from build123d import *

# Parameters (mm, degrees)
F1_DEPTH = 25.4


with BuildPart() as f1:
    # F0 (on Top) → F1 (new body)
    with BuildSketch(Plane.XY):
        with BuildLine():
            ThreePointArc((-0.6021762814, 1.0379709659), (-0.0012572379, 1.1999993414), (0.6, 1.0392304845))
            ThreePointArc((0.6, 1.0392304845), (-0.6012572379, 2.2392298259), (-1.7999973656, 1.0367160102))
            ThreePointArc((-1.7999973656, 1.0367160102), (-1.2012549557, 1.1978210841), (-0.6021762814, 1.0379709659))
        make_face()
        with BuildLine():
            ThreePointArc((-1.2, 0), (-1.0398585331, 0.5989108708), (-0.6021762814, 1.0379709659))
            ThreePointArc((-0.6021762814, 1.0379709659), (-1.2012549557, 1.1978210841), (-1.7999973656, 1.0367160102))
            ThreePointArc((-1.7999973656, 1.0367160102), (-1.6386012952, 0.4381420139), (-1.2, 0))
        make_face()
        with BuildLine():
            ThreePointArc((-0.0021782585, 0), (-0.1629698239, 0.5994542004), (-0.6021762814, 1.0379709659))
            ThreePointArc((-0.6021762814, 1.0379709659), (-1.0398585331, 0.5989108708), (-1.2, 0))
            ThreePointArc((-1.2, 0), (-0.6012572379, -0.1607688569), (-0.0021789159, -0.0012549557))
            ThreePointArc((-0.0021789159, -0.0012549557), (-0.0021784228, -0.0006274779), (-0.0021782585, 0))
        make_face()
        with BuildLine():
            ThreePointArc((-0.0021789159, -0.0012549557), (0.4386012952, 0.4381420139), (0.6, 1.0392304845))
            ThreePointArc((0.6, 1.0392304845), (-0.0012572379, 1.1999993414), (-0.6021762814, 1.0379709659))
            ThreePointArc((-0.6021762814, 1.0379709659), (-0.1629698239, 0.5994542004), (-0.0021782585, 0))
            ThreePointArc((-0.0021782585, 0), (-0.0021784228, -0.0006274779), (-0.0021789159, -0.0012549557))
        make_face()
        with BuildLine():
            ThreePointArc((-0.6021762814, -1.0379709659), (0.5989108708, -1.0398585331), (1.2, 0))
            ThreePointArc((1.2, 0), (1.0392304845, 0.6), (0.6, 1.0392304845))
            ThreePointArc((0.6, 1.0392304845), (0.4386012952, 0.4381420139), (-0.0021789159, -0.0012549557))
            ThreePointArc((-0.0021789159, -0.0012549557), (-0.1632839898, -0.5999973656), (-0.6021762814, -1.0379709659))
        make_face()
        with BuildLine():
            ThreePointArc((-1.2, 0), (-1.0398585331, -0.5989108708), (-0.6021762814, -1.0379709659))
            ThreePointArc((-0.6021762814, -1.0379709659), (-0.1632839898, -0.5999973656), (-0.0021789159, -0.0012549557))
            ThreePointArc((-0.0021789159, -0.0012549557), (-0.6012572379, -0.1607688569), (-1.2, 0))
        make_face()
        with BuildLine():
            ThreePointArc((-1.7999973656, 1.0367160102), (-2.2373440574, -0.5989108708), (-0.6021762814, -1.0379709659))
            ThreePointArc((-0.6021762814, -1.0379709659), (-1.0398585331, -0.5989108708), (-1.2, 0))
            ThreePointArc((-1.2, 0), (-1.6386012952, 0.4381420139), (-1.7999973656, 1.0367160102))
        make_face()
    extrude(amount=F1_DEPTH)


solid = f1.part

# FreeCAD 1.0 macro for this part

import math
import FreeCAD as App
import Part
import Sketcher
Q = App.Units.Quantity

doc = App.newDocument("Part")
body = doc.addObject("PartDesign::Body", "Body")

sketch1 = doc.addObject("Sketcher::SketchObject", "Sketch")
body.addObject(sketch1)
sketch1.AttachmentSupport = (doc.XY_Plane, [""])
sketch1.MapMode = "FlatFace"
sketch1.addGeometry([
    Part.ArcOfCircle(Part.Circle(App.Vector(-0.6, 1, 0), App.Vector(0, 0, 1), 1.2), math.radians(0), math.radians(180)),
    Part.ArcOfCircle(Part.Circle(App.Vector(-1.2, 0, 0), App.Vector(0, 0, 1), 1.2), math.radians(120), math.radians(300)),
    Part.ArcOfCircle(Part.Circle(App.Vector(0, 0, 0), App.Vector(0, 0, 1), 1.2), math.radians(-120), math.radians(0)),
    Part.ArcOfCircle(Part.Circle(App.Vector(0, 0, 0), App.Vector(0, 0, 1), 1.2), math.radians(0), math.radians(60)),
], False)
sketch1.addConstraint([
    Sketcher.Constraint("Coincident", 0, 2, 1, 1),
    Sketcher.Constraint("Coincident", 1, 2, 2, 1),
    Sketcher.Constraint("Tangent", 2, 2, 3, 1),
    Sketcher.Constraint("Coincident", 3, 2, 0, 1),
    Sketcher.Constraint("Coincident", 2, 3, -1, 1),
    Sketcher.Constraint("Equal", 0, 2),
    Sketcher.Constraint("Equal", 2, 3),
    Sketcher.Constraint("PointOnObject", 1, 3, -1),
    Sketcher.Constraint("PointOnObject", 2, 2, -1),
    Sketcher.Constraint("Horizontal", 0, 3, 3, 2),
    Sketcher.Constraint("Radius", 0, Q("1.2 mm")),
    Sketcher.Constraint("DistanceX", 0, 3, -1, 1, Q("0.6 mm")),
    Sketcher.Constraint("DistanceX", 1, 3, -1, 1, Q("1.2 mm")),
    Sketcher.Constraint("Radius", 1, Q("1.197822 mm")),
])
pad1 = doc.addObject("PartDesign::Pad", "Pad")
body.addObject(pad1)
pad1.Profile = sketch1
pad1.Length = 25.4

doc.recompute()
